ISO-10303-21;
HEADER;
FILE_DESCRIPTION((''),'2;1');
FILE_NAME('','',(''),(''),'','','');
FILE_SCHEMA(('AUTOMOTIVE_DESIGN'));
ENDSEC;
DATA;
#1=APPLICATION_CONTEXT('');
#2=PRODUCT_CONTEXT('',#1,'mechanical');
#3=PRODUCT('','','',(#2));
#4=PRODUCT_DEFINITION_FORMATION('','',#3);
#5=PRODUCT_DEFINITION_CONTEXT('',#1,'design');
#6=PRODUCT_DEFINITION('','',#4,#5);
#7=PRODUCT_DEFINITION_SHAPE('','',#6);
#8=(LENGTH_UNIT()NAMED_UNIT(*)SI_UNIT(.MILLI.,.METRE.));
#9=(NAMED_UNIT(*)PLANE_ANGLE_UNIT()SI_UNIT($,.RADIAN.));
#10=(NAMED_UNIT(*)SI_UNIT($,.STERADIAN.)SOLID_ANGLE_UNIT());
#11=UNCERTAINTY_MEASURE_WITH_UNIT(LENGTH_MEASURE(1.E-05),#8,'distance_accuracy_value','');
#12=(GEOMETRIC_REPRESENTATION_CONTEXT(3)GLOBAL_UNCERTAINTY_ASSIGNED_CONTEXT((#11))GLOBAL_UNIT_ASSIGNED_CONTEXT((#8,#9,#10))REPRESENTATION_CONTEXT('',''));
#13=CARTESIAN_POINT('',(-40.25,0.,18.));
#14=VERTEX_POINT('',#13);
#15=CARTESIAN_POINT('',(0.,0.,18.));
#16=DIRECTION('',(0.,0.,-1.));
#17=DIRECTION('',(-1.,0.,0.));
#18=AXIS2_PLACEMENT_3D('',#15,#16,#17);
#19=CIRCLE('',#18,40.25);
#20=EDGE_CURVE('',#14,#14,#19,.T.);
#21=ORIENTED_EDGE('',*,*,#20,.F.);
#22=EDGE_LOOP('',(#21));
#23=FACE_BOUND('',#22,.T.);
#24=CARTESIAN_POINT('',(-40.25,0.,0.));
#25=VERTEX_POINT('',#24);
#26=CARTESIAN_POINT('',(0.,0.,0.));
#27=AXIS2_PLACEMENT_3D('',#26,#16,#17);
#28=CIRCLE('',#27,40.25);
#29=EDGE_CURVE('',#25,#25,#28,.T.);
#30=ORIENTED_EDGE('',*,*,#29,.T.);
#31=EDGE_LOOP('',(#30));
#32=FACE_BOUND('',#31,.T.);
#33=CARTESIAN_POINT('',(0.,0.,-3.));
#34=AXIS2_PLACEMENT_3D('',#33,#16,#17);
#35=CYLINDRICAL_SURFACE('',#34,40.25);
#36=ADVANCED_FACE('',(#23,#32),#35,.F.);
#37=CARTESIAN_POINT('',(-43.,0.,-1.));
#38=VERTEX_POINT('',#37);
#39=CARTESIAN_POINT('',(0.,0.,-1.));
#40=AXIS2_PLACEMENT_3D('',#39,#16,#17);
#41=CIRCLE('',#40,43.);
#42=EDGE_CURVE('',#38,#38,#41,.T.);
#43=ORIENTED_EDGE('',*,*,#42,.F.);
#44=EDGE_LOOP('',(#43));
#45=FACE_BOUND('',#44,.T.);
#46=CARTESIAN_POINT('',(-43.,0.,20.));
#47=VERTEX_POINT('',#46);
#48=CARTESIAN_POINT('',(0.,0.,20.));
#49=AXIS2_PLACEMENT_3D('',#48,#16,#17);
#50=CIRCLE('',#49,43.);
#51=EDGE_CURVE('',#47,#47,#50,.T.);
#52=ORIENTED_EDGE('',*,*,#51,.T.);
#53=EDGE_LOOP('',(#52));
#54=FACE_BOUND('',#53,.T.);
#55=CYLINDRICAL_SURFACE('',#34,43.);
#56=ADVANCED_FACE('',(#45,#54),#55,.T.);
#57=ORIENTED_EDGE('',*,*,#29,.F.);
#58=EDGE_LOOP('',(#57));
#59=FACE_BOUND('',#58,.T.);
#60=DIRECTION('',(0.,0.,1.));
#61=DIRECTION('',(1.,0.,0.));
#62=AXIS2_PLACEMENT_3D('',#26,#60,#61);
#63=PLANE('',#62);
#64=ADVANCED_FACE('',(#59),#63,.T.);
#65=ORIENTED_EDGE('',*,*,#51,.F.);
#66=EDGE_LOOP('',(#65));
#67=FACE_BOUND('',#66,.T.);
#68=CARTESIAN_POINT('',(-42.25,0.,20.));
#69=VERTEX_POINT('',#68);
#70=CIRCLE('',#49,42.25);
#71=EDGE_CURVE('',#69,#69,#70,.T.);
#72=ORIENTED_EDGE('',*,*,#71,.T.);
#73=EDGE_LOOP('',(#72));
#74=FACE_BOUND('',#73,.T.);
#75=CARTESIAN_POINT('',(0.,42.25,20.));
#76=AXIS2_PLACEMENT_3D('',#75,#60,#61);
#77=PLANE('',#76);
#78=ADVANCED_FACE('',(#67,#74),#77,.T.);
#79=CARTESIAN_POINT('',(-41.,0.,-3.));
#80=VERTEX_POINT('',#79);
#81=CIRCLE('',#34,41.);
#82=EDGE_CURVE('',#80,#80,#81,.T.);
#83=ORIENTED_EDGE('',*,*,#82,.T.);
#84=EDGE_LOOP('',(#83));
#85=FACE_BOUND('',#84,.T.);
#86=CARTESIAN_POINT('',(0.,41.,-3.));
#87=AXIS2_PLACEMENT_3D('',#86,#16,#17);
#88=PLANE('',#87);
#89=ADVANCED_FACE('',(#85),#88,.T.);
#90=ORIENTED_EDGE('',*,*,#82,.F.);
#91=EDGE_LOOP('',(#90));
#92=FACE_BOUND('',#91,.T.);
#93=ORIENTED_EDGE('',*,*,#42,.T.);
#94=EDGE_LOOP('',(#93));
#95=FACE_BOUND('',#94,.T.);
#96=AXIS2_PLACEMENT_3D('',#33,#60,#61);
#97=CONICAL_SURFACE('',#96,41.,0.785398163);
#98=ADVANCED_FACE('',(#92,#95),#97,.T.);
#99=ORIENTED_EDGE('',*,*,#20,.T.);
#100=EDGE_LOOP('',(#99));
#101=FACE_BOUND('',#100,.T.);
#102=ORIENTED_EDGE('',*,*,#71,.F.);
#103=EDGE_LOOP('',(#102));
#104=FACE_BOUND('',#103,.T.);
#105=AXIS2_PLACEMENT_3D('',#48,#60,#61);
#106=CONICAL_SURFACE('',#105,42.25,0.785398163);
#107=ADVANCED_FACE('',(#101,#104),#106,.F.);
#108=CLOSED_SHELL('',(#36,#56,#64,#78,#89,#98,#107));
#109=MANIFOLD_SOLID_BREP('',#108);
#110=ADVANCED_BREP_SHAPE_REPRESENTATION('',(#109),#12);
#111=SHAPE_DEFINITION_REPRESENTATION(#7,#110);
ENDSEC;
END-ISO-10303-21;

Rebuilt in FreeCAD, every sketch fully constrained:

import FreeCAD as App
import Part
import Sketcher

V = App.Vector
Q = App.Units.Quantity

doc = App.newDocument("Part")
body = doc.addObject("PartDesign::Body", "Body")

# Sketch on YZ plane
sketch1 = body.newObject("Sketcher::SketchObject", "Sketch")
sketch1.AttachmentSupport = (doc.getObject("YZ_Plane"), [""])
sketch1.MapMode = "FlatFace"
sketch1.addGeometry([
    Part.LineSegment(V(40.2, 0, 0), V(0, 0, 0)),  # 0
    Part.LineSegment(V(0, 0, 0), V(0, -3, 0)),  # 1
    Part.LineSegment(V(0, -3, 0), V(41, -3, 0)),  # 2
    Part.LineSegment(V(41, -3, 0), V(43, -1, 0)),  # 3
    Part.LineSegment(V(43, -1, 0), V(43, 20, 0)),  # 4
    Part.LineSegment(V(43, 20, 0), V(42.2, 20, 0)),  # 5
    Part.LineSegment(V(42.2, 20, 0), V(40.2, 18, 0)),  # 6
    Part.LineSegment(V(40.2, 18, 0), V(40.2, 0, 0)),  # 7
], False)
sketch1.addConstraint([
    Sketcher.Constraint("Coincident", 0, 2, 1, 1),
    Sketcher.Constraint("Coincident", 1, 2, 2, 1),
    Sketcher.Constraint("Coincident", 2, 2, 3, 1),
    Sketcher.Constraint("Coincident", 3, 2, 4, 1),
    Sketcher.Constraint("Coincident", 4, 2, 5, 1),
    Sketcher.Constraint("Coincident", 5, 2, 6, 1),
    Sketcher.Constraint("Coincident", 6, 2, 7, 1),
    Sketcher.Constraint("Coincident", 7, 2, 0, 1),
    Sketcher.Constraint("Horizontal", 0),
    Sketcher.Constraint("Vertical", 1),
    Sketcher.Constraint("Horizontal", 2),
    Sketcher.Constraint("Vertical", 4),
    Sketcher.Constraint("Horizontal", 5),
    Sketcher.Constraint("Vertical", 7),
    Sketcher.Constraint("Coincident", 0, 2, -1, 1),
    Sketcher.Constraint("Parallel", 3, 6),
    Sketcher.Constraint("Equal", 3, 6),
    Sketcher.Constraint("DistanceX", 2, 1, 2, 2, Q("41 mm")),
    Sketcher.Constraint("DistanceY", 1, 2, 1, 1, Q("3 mm")),
    Sketcher.Constraint("DistanceY", 4, 1, 4, 2, Q("21 mm")),
    Sketcher.Constraint("Angle", 3, Q("45 deg")),
    Sketcher.Constraint("DistanceX", -1, 1, 3, 2, Q("43 mm")),
    Sketcher.Constraint("DistanceX", 0, 2, 0, 1, Q("40.25 mm")),
])
revolution = body.newObject("PartDesign::Revolution", "Revolution")
revolution.Profile = sketch1
revolution.ReferenceAxis = (sketch1, ["V_Axis"])
revolution.Angle = 360

doc.recompute()
